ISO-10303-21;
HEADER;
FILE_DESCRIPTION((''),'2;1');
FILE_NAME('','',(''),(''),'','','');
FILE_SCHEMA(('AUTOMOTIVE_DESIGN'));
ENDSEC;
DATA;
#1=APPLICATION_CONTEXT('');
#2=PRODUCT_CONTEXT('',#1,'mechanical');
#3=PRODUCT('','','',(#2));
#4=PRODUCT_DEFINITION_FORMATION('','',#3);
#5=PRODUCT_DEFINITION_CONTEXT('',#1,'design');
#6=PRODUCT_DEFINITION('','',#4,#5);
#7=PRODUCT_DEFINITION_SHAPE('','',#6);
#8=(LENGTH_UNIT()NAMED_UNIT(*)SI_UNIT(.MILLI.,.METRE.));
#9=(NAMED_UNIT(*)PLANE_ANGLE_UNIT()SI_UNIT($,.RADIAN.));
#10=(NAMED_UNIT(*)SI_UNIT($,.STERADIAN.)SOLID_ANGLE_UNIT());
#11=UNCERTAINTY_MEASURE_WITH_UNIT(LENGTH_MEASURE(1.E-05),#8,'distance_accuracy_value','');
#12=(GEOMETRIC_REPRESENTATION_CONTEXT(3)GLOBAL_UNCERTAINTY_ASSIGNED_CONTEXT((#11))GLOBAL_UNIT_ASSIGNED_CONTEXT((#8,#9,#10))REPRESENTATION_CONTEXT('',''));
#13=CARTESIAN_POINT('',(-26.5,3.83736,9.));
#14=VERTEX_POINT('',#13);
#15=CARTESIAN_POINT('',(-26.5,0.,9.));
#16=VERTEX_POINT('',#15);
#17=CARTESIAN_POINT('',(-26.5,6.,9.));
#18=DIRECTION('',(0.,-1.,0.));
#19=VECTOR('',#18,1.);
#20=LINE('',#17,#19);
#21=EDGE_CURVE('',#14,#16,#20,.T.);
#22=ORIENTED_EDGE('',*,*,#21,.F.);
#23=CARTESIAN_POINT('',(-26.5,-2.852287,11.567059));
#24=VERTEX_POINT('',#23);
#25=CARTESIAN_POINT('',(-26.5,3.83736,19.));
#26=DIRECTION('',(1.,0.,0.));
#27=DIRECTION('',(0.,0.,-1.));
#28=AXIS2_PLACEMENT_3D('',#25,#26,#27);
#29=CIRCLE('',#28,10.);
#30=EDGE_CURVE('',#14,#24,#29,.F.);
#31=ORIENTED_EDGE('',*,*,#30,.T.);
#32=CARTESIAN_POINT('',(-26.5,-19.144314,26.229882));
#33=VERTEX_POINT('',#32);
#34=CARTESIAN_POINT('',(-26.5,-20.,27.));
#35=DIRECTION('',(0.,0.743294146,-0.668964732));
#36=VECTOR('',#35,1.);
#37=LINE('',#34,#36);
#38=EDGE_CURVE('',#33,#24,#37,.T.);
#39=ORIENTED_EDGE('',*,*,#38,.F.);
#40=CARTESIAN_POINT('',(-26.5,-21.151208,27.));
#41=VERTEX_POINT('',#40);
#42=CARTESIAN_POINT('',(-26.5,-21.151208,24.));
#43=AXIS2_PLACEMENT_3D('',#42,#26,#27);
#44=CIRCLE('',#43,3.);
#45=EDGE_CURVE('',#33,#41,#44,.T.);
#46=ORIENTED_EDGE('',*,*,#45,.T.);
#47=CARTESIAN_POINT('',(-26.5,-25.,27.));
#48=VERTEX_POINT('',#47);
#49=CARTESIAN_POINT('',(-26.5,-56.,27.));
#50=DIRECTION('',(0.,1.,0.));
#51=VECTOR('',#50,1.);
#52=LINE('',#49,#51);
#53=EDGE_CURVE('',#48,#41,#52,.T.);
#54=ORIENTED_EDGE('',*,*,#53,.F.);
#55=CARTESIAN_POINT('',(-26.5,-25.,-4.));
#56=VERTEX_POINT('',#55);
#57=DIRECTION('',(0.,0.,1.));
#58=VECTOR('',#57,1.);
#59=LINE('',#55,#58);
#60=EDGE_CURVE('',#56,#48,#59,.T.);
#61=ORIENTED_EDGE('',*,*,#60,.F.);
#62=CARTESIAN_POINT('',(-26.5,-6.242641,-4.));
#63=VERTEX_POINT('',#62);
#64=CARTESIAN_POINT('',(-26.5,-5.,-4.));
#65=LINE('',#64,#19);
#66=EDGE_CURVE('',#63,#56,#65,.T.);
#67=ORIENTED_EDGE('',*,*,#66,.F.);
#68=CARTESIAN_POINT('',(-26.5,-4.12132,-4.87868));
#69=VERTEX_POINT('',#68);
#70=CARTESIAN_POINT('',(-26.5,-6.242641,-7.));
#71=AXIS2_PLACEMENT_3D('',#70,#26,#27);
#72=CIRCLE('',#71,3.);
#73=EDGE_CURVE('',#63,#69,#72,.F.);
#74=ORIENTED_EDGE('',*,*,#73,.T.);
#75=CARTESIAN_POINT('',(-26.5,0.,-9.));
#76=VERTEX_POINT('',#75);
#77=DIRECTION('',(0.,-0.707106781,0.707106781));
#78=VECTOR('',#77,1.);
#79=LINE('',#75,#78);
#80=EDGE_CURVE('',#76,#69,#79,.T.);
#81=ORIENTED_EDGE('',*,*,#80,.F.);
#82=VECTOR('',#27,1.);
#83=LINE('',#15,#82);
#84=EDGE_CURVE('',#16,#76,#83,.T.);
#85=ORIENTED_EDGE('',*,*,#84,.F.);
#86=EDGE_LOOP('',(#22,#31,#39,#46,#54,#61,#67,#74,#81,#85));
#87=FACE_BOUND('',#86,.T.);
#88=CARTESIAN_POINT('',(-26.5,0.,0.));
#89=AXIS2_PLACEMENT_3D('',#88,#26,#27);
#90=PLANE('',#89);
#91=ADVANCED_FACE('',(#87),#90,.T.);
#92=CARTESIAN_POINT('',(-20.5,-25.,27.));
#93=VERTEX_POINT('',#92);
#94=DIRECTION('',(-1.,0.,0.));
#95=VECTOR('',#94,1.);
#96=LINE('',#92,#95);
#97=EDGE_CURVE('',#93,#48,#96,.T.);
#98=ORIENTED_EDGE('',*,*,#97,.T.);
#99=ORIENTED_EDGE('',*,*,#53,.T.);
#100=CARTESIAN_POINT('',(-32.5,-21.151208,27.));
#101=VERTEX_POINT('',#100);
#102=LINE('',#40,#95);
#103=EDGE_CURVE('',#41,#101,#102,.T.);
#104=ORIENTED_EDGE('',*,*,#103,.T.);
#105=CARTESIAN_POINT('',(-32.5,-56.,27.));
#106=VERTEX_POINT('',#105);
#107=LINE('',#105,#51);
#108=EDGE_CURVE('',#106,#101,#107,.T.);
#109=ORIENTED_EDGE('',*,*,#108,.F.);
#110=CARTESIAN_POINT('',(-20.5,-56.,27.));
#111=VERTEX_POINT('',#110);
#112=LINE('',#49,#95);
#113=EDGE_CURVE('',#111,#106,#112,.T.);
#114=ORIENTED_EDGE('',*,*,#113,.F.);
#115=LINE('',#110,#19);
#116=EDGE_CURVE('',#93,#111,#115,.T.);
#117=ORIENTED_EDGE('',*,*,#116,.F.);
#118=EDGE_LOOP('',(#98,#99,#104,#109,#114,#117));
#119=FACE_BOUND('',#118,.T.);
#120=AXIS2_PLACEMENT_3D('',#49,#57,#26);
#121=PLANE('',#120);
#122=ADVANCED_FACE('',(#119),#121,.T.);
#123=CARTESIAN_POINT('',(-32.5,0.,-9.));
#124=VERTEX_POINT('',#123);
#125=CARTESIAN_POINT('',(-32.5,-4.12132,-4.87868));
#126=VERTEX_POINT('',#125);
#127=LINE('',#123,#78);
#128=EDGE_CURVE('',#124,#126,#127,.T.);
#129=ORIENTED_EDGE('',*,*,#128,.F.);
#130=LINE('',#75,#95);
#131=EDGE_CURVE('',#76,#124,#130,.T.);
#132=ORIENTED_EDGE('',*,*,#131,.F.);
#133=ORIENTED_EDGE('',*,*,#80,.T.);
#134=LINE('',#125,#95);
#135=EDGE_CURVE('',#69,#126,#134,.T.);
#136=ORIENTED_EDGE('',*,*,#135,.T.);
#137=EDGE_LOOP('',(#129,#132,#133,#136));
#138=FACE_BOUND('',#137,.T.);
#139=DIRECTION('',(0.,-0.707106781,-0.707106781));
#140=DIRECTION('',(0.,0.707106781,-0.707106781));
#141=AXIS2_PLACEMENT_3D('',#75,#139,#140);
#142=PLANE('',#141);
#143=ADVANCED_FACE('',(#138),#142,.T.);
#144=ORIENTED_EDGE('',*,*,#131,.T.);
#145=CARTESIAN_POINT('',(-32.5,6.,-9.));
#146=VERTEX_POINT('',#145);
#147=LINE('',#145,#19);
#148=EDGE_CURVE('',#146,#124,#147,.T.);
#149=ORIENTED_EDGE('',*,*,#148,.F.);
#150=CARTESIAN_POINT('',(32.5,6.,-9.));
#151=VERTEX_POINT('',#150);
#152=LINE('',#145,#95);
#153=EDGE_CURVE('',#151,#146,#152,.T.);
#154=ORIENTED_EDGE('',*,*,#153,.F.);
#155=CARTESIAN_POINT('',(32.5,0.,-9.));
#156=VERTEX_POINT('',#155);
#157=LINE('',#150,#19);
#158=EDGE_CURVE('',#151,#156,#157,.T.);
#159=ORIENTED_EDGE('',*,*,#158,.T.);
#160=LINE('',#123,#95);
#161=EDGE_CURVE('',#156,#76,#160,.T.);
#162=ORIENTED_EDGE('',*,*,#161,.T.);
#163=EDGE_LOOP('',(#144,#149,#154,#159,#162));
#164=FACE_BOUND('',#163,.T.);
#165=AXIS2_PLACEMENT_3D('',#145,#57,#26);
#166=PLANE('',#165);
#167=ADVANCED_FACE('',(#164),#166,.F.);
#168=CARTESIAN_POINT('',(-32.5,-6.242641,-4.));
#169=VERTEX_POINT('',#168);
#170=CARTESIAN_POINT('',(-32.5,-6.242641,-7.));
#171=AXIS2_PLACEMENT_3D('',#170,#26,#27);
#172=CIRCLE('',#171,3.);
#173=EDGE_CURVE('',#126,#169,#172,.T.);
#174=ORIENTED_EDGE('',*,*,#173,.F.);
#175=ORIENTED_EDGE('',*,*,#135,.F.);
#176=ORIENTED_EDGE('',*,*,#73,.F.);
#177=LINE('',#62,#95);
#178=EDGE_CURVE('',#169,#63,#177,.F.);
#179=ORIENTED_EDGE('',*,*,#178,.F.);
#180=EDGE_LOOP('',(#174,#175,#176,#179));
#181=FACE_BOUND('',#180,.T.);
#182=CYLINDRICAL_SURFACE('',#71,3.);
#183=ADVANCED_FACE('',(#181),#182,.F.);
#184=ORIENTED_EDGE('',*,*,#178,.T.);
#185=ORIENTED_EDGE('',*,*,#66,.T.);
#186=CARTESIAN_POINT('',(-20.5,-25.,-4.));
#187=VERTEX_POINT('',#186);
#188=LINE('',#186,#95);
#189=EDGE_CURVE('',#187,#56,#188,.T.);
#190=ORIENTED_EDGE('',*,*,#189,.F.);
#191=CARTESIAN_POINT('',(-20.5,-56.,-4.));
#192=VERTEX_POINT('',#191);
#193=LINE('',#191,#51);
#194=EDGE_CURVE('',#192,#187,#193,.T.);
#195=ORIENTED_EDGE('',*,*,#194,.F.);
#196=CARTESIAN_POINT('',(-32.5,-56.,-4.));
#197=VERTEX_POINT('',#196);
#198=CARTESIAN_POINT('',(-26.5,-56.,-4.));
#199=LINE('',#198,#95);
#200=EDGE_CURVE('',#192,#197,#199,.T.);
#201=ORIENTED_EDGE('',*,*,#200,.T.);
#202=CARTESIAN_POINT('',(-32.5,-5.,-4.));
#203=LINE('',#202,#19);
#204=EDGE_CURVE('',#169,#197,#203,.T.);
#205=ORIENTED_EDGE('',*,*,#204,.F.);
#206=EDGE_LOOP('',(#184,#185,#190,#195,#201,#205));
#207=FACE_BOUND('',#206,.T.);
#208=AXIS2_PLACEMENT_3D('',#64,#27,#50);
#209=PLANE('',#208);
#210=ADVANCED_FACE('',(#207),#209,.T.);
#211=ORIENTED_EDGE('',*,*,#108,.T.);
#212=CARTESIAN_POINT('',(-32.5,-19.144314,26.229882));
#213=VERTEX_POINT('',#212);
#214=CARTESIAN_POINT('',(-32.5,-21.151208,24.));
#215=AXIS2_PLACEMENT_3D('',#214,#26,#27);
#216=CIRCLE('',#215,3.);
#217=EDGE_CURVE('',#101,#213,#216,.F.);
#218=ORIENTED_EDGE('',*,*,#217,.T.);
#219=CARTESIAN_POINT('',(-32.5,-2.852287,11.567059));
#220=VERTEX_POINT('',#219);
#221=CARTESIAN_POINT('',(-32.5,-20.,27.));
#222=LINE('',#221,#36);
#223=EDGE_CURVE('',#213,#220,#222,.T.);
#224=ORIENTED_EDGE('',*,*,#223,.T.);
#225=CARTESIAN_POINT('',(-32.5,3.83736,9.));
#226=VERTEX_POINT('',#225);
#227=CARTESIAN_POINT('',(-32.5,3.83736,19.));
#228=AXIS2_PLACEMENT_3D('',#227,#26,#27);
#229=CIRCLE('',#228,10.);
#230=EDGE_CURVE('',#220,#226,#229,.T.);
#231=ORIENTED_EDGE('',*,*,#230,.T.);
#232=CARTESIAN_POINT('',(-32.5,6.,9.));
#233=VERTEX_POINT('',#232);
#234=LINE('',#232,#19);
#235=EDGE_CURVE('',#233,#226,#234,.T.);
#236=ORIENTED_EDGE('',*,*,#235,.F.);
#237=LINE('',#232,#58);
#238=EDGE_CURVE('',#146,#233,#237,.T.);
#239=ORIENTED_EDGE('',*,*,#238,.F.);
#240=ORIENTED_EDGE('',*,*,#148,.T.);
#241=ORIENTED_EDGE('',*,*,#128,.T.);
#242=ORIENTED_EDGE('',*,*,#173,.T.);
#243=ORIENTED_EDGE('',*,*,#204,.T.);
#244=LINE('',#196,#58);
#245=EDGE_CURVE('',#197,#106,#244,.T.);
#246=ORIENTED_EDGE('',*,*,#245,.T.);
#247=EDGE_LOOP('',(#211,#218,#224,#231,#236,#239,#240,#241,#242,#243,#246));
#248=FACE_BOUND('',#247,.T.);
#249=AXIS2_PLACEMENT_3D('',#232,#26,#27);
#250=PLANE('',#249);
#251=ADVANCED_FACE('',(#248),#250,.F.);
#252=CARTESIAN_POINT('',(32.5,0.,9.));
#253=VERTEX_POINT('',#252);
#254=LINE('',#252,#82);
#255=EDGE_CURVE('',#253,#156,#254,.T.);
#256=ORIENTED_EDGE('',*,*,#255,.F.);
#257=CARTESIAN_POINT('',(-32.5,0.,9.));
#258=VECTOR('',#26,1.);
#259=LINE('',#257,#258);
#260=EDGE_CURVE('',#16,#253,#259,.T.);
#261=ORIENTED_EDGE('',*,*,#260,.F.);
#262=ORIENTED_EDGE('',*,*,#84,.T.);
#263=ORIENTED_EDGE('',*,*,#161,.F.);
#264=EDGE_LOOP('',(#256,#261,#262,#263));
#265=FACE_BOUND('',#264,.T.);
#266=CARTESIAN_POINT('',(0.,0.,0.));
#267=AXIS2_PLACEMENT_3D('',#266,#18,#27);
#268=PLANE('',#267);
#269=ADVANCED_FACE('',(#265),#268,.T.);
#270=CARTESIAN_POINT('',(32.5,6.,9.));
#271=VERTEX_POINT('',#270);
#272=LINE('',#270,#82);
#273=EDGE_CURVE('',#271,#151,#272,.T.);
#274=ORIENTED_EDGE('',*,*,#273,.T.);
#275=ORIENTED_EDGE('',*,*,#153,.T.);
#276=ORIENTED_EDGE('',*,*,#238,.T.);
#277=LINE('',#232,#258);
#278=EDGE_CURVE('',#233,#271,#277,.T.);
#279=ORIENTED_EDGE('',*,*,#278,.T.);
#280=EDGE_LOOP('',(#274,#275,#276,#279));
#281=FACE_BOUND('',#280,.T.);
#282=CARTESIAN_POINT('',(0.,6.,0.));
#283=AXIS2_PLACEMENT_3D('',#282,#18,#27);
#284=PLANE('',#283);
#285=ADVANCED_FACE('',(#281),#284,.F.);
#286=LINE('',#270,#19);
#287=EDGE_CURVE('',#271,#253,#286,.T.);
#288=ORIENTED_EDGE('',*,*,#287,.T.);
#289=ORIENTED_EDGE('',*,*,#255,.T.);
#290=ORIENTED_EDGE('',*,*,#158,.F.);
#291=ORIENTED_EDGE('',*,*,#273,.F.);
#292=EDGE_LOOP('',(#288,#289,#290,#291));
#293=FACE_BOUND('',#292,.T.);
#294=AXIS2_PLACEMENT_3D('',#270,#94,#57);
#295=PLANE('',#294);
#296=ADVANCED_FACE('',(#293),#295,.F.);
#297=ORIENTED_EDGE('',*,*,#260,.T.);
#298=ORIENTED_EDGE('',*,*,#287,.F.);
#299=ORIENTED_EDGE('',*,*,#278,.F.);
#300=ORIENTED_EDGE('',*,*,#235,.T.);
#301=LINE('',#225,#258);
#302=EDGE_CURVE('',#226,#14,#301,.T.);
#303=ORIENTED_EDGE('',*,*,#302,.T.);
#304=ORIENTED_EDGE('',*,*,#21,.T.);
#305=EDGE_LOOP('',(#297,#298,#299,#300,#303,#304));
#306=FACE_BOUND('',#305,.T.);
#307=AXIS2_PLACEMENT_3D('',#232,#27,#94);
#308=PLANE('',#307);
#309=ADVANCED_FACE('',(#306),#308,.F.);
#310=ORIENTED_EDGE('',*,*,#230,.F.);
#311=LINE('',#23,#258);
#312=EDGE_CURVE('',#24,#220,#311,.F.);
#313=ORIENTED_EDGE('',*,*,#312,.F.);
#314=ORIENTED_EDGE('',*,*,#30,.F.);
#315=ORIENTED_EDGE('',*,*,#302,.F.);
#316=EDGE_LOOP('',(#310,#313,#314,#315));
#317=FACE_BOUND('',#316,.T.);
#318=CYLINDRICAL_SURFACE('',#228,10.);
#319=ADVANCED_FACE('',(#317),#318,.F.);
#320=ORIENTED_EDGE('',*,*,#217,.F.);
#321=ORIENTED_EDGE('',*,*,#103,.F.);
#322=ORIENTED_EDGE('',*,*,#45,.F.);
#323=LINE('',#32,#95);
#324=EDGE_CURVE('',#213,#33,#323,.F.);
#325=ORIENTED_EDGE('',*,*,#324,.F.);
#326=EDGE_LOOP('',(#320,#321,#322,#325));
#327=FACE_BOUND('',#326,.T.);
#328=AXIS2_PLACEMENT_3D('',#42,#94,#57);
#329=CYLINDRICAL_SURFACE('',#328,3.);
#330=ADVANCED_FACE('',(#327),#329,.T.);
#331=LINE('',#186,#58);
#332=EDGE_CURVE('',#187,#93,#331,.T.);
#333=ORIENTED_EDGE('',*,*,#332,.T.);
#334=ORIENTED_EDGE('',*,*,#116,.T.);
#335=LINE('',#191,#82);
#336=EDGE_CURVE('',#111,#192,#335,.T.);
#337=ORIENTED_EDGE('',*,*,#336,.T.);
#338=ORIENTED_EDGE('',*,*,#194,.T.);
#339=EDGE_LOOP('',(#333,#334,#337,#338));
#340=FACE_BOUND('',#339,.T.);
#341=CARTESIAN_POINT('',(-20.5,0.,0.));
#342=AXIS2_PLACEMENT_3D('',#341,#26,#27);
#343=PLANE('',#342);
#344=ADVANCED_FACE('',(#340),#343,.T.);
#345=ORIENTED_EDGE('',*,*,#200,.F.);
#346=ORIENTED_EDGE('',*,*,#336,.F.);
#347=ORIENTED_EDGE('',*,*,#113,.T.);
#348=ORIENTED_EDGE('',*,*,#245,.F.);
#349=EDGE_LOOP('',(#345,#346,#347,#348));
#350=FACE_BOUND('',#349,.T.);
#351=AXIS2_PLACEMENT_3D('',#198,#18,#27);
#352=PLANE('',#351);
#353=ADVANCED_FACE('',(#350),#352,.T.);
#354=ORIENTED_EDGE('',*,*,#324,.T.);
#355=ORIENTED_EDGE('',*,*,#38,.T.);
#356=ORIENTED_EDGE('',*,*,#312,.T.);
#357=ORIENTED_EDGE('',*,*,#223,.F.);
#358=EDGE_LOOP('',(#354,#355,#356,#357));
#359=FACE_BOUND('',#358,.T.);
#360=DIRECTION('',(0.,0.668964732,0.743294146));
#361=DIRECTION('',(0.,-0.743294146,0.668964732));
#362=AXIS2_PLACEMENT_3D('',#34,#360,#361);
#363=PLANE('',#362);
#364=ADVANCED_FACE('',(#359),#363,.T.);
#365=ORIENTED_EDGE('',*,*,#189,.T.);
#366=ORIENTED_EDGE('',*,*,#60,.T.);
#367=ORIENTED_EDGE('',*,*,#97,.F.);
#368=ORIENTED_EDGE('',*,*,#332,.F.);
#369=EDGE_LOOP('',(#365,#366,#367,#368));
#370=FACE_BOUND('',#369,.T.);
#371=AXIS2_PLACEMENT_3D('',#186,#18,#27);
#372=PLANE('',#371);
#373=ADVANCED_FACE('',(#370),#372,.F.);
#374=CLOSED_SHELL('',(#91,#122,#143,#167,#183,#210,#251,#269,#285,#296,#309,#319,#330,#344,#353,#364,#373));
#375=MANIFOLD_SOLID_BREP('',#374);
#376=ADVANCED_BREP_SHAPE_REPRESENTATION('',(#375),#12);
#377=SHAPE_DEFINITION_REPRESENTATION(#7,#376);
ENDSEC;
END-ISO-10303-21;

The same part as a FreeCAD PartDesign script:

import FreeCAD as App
import Part
import Sketcher

V = App.Vector
Q = App.Units.Quantity


def edges_at(feature, points):
    """Names of the edges that pass closest to the given points."""
    edges = feature.Shape.Edges
    near = lambda p: min(range(len(edges)), key=lambda i: edges[i].distToShape(Part.Vertex(*p))[0])
    return sorted({f"Edge{near(p) + 1}" for p in points})


def add_polygon(sketch, points):
    """Adds a closed chain of lines whose ends are joined by coincident constraints."""
    first, n = sketch.GeometryCount, len(points)
    for a, b in zip(points, points[1:] + points[:1]):
        sketch.addGeometry(Part.LineSegment(App.Vector(*a, 0), App.Vector(*b, 0)), False)
    for i in range(n):
        sketch.addConstraint(Sketcher.Constraint("Coincident", first + i, 2, first + (i + 1) % n, 1))

doc = App.newDocument("Part")
params = doc.addObject("Spreadsheet::Sheet", "Params")
for row, (alias, value) in enumerate([
    ("sketch1_width", "65 mm"),
    ("sketch1_height", "18 mm"),
    ("pad1_length", "6 mm"),
    ("sketch2_width", "51 mm"),
    ("sketch2_width2", "36 mm"),
    ("sketch2_height", "18 mm"),
    ("sketch2_height2", "31 mm"),
    ("pad2_length", "6 mm"),
    ("fillet_radius", "10 mm"),
    ("fillet2_radius", "3 mm"),
    ("sketch3_width", "31 mm"),
    ("pad3_length", "6 mm"),
], start=1):
    params.set(f"A{row}", alias)
    params.set(f"B{row}", "=" + value)
    params.setAlias(f"B{row}", alias)

body = doc.addObject("PartDesign::Body", "Body")

# Sketch on XZ plane
sketch1 = body.newObject("Sketcher::SketchObject", "Sketch")
sketch1.AttachmentSupport = (doc.getObject("XZ_Plane"), [""])
sketch1.MapMode = "FlatFace"
add_polygon(sketch1, [(-32, -9), (-32, 9), (32, 9), (32, -9)])  # lines 0-3
sketch1.addConstraint([
    Sketcher.Constraint("Vertical", 0),
    Sketcher.Constraint("Horizontal", 1),
    Sketcher.Constraint("Vertical", 2),
    Sketcher.Constraint("Horizontal", 3),
    Sketcher.Constraint("Symmetric", 0, 2, 2, 2, -1, 1),
    Sketcher.Constraint("DistanceX", 1, 1, 1, 2, 65.0),
    Sketcher.Constraint("DistanceY", 0, 1, 0, 2, 18.0),
])
sketch1.setExpression("Constraints[9]", "Params.sketch1_width")
sketch1.setExpression("Constraints[10]", "Params.sketch1_height")
pad1 = body.newObject("PartDesign::Pad", "Pad")
pad1.Profile = sketch1
pad1.setExpression("Length", "Params.pad1_length")
pad1.Reversed = True

# Sketch on YZ plane
sketch2 = body.newObject("Sketcher::SketchObject", "Sketch001")
sketch2.AttachmentSupport = (doc.getObject("YZ_Plane"), [""])
sketch2.MapMode = "FlatFace"
sketch2.AttachmentOffset = App.Placement(V(0, 0, -32.5), App.Rotation())
add_polygon(sketch2, [(0, 9), (0, -9), (-5, -4), (-56, -4), (-56, 27), (-20, 27)])  # lines 0-5
sketch2.addConstraint([
    Sketcher.Constraint("Vertical", 0),
    Sketcher.Constraint("Horizontal", 2),
    Sketcher.Constraint("Vertical", 3),
    Sketcher.Constraint("Horizontal", 4),
    Sketcher.Constraint("Symmetric", 0, 2, 5, 2, -1, 1),
    Sketcher.Constraint("DistanceX", 2, 2, 2, 1, 51.0),
    Sketcher.Constraint("DistanceX", 4, 1, 4, 2, 36.0),
    Sketcher.Constraint("DistanceY", 0, 2, 0, 1, 18.0),
    Sketcher.Constraint("DistanceY", 3, 1, 3, 2, 31.0),
    Sketcher.Constraint("Angle", 1, Q("135 deg")),
    Sketcher.Constraint("DistanceX", 1, 2, -1, 1, 5.0),
])
sketch2.setExpression("Constraints[11]", "Params.sketch2_width")
sketch2.setExpression("Constraints[12]", "Params.sketch2_width2")
sketch2.setExpression("Constraints[13]", "Params.sketch2_height")
sketch2.setExpression("Constraints[14]", "Params.sketch2_height2")
pad2 = body.newObject("PartDesign::Pad", "Pad001")
pad2.Profile = sketch2
pad2.setExpression("Length", "Params.pad2_length")
doc.recompute()

fillet = body.newObject("PartDesign::Fillet", "Fillet")
fillet.Base = (pad2, edges_at(pad2, [(-29.5, 0, 9)]))
fillet.setExpression("Radius", "Params.fillet_radius")
doc.recompute()

fillet2 = body.newObject("PartDesign::Fillet", "Fillet001")
fillet2.Base = (fillet, edges_at(fillet, [(-29.5, -20, 27), (-29.5, -5, -4)]))
fillet2.setExpression("Radius", "Params.fillet2_radius")

# Sketch on YZ plane
sketch3 = body.newObject("Sketcher::SketchObject", "Sketch002")
sketch3.AttachmentSupport = (doc.getObject("YZ_Plane"), [""])
sketch3.MapMode = "FlatFace"
sketch3.AttachmentOffset = App.Placement(V(0, 0, -26.5), App.Rotation())
add_polygon(sketch3, [(-25, 27), (-56, 27), (-56, -4), (-25, -4)])  # lines 0-3
sketch3.addConstraint([
    Sketcher.Constraint("Horizontal", 0),
    Sketcher.Constraint("Vertical", 1),
    Sketcher.Constraint("Horizontal", 2),
    Sketcher.Constraint("Vertical", 3),
    Sketcher.Constraint("Equal", 2, 1),
    Sketcher.Constraint("DistanceX", 0, 2, 0, 1, 31.0),
    Sketcher.Constraint("DistanceX", 0, 2, -1, 1, 56.0),
    Sketcher.Constraint("DistanceY", -1, 1, 0, 2, 27.0),
])
sketch3.setExpression("Constraints[9]", "Params.sketch3_width")
pad3 = body.newObject("PartDesign::Pad", "Pad002")
pad3.Profile = sketch3
pad3.setExpression("Length", "Params.pad3_length")

doc.recompute()
